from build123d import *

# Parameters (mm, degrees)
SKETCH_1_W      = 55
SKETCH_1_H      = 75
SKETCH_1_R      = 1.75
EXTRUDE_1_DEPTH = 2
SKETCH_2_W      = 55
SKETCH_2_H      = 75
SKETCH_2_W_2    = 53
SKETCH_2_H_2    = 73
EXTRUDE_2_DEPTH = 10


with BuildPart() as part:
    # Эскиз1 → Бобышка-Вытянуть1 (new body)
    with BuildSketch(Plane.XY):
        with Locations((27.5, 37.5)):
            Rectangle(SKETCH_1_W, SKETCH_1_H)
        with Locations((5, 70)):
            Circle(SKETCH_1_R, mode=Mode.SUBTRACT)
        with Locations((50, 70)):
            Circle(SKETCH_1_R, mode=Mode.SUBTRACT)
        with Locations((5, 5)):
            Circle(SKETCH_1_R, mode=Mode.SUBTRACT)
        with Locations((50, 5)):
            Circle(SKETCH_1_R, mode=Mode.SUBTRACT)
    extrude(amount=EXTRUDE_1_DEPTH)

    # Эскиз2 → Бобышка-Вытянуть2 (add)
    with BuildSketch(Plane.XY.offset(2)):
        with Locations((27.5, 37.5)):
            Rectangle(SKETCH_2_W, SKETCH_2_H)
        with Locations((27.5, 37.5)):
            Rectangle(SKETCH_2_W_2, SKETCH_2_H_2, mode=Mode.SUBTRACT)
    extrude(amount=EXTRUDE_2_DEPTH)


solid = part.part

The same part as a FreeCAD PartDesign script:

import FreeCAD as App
import Part
import Sketcher

V = App.Vector
Q = App.Units.Quantity


def add_polygon(sketch, points):
    """Adds a closed chain of lines whose ends are joined by coincident constraints."""
    first, n = sketch.GeometryCount, len(points)
    for a, b in zip(points, points[1:] + points[:1]):
        sketch.addGeometry(Part.LineSegment(App.Vector(*a, 0), App.Vector(*b, 0)), False)
    for i in range(n):
        sketch.addConstraint(Sketcher.Constraint("Coincident", first + i, 2, first + (i + 1) % n, 1))

doc = App.newDocument("Part")
params = doc.addObject("Spreadsheet::Sheet", "Params")
for row, (alias, value) in enumerate([
    ("sketch1_diameter", "3.5 mm"),
    ("sketch1_width", "55 mm"),
    ("sketch1_height", "75 mm"),
    ("pad1_length", "2 mm"),
    ("sketch2_width", "55 mm"),
    ("sketch2_width2", "53 mm"),
    ("sketch2_height", "75 mm"),
    ("sketch2_height2", "73 mm"),
    ("pad2_length", "10 mm"),
], start=1):
    params.set(f"A{row}", alias)
    params.set(f"B{row}", "=" + value)
    params.setAlias(f"B{row}", alias)

body = doc.addObject("PartDesign::Body", "Body")

sketch1 = body.newObject("Sketcher::SketchObject", "Sketch")
sketch1.AttachmentSupport = (doc.getObject("XY_Plane"), [""])
sketch1.MapMode = "FlatFace"
add_polygon(sketch1, [(0, 75), (0, 0), (55, 0), (55, 75)])
sketch1.addGeometry(Part.Circle(V(5, 5, 0), V(0, 0, 1), 1.8), False)
sketch1.addGeometry(Part.Circle(V(50, 5, 0), V(0, 0, 1), 1.8), False)
sketch1.addGeometry(Part.Circle(V(5, 70, 0), V(0, 0, 1), 1.8), False)
sketch1.addGeometry(Part.Circle(V(50, 70, 0), V(0, 0, 1), 1.8), False)
sketch1.addConstraint([
    Sketcher.Constraint("Vertical", 0),
    Sketcher.Constraint("Horizontal", 1),
    Sketcher.Constraint("Vertical", 2),
    Sketcher.Constraint("Horizontal", 3),
    Sketcher.Constraint("Coincident", 0, 2, -1, 1),
    Sketcher.Constraint("Equal", 4, 5),
    Sketcher.Constraint("Equal", 5, 6),
    Sketcher.Constraint("Equal", 6, 7),
    Sketcher.Constraint("Horizontal", 4, 3, 5, 3),
    Sketcher.Constraint("Horizontal", 6, 3, 7, 3),
    Sketcher.Constraint("Vertical", 4, 3, 6, 3),
    Sketcher.Constraint("Vertical", 5, 3, 7, 3),
    Sketcher.Constraint("Diameter", 4, Q("3.5 mm")),
    Sketcher.Constraint("DistanceX", 1, 1, 1, 2, Q("55 mm")),
    Sketcher.Constraint("DistanceY", 0, 2, 0, 1, Q("75 mm")),
    Sketcher.Constraint("DistanceX", -1, 1, 4, 3, Q("5 mm")),
    Sketcher.Constraint("DistanceY", -1, 1, 4, 3, Q("5 mm")),
    Sketcher.Constraint("DistanceX", -1, 1, 5, 3, Q("50 mm")),
    Sketcher.Constraint("DistanceY", -1, 1, 6, 3, Q("70 mm")),
])
sketch1.setExpression("Constraints[16]", "Params.sketch1_diameter")
sketch1.setExpression("Constraints[17]", "Params.sketch1_width")
sketch1.setExpression("Constraints[18]", "Params.sketch1_height")
pad1 = body.newObject("PartDesign::Pad", "Pad")
pad1.Profile = sketch1
pad1.setExpression("Length", "Params.pad1_length")

sketch2 = body.newObject("Sketcher::SketchObject", "Sketch001")
sketch2.AttachmentSupport = (doc.getObject("XY_Plane"), [""])
sketch2.MapMode = "FlatFace"
sketch2.AttachmentOffset = App.Placement(V(0, 0, 2), App.Rotation())
add_polygon(sketch2, [(0, 75), (0, 0), (55, 0), (55, 75)])
add_polygon(sketch2, [(54, 1), (1, 1), (1, 74), (54, 74)])
sketch2.addConstraint([
    Sketcher.Constraint("Vertical", 0),
    Sketcher.Constraint("Horizontal", 1),
    Sketcher.Constraint("Vertical", 2),
    Sketcher.Constraint("Horizontal", 3),
    Sketcher.Constraint("Horizontal", 4),
    Sketcher.Constraint("Vertical", 5),
    Sketcher.Constraint("Horizontal", 6),
    Sketcher.Constraint("Vertical", 7),
    Sketcher.Constraint("Coincident", 0, 2, -1, 1),
    Sketcher.Constraint("DistanceX", 1, 1, 1, 2, Q("55 mm")),
    Sketcher.Constraint("DistanceX", 4, 2, 4, 1, Q("53 mm")),
    Sketcher.Constraint("DistanceY", 0, 2, 0, 1, Q("75 mm")),
    Sketcher.Constraint("DistanceY", 5, 1, 5, 2, Q("73 mm")),
    Sketcher.Constraint("DistanceX", -1, 1, 4, 2, Q("1 mm")),
    Sketcher.Constraint("DistanceY", -1, 1, 4, 2, Q("1 mm")),
])
sketch2.setExpression("Constraints[17]", "Params.sketch2_width")
sketch2.setExpression("Constraints[18]", "Params.sketch2_width2")
sketch2.setExpression("Constraints[19]", "Params.sketch2_height")
sketch2.setExpression("Constraints[20]", "Params.sketch2_height2")
pad2 = body.newObject("PartDesign::Pad", "Pad001")
pad2.Profile = sketch2
pad2.setExpression("Length", "Params.pad2_length")

doc.recompute()
